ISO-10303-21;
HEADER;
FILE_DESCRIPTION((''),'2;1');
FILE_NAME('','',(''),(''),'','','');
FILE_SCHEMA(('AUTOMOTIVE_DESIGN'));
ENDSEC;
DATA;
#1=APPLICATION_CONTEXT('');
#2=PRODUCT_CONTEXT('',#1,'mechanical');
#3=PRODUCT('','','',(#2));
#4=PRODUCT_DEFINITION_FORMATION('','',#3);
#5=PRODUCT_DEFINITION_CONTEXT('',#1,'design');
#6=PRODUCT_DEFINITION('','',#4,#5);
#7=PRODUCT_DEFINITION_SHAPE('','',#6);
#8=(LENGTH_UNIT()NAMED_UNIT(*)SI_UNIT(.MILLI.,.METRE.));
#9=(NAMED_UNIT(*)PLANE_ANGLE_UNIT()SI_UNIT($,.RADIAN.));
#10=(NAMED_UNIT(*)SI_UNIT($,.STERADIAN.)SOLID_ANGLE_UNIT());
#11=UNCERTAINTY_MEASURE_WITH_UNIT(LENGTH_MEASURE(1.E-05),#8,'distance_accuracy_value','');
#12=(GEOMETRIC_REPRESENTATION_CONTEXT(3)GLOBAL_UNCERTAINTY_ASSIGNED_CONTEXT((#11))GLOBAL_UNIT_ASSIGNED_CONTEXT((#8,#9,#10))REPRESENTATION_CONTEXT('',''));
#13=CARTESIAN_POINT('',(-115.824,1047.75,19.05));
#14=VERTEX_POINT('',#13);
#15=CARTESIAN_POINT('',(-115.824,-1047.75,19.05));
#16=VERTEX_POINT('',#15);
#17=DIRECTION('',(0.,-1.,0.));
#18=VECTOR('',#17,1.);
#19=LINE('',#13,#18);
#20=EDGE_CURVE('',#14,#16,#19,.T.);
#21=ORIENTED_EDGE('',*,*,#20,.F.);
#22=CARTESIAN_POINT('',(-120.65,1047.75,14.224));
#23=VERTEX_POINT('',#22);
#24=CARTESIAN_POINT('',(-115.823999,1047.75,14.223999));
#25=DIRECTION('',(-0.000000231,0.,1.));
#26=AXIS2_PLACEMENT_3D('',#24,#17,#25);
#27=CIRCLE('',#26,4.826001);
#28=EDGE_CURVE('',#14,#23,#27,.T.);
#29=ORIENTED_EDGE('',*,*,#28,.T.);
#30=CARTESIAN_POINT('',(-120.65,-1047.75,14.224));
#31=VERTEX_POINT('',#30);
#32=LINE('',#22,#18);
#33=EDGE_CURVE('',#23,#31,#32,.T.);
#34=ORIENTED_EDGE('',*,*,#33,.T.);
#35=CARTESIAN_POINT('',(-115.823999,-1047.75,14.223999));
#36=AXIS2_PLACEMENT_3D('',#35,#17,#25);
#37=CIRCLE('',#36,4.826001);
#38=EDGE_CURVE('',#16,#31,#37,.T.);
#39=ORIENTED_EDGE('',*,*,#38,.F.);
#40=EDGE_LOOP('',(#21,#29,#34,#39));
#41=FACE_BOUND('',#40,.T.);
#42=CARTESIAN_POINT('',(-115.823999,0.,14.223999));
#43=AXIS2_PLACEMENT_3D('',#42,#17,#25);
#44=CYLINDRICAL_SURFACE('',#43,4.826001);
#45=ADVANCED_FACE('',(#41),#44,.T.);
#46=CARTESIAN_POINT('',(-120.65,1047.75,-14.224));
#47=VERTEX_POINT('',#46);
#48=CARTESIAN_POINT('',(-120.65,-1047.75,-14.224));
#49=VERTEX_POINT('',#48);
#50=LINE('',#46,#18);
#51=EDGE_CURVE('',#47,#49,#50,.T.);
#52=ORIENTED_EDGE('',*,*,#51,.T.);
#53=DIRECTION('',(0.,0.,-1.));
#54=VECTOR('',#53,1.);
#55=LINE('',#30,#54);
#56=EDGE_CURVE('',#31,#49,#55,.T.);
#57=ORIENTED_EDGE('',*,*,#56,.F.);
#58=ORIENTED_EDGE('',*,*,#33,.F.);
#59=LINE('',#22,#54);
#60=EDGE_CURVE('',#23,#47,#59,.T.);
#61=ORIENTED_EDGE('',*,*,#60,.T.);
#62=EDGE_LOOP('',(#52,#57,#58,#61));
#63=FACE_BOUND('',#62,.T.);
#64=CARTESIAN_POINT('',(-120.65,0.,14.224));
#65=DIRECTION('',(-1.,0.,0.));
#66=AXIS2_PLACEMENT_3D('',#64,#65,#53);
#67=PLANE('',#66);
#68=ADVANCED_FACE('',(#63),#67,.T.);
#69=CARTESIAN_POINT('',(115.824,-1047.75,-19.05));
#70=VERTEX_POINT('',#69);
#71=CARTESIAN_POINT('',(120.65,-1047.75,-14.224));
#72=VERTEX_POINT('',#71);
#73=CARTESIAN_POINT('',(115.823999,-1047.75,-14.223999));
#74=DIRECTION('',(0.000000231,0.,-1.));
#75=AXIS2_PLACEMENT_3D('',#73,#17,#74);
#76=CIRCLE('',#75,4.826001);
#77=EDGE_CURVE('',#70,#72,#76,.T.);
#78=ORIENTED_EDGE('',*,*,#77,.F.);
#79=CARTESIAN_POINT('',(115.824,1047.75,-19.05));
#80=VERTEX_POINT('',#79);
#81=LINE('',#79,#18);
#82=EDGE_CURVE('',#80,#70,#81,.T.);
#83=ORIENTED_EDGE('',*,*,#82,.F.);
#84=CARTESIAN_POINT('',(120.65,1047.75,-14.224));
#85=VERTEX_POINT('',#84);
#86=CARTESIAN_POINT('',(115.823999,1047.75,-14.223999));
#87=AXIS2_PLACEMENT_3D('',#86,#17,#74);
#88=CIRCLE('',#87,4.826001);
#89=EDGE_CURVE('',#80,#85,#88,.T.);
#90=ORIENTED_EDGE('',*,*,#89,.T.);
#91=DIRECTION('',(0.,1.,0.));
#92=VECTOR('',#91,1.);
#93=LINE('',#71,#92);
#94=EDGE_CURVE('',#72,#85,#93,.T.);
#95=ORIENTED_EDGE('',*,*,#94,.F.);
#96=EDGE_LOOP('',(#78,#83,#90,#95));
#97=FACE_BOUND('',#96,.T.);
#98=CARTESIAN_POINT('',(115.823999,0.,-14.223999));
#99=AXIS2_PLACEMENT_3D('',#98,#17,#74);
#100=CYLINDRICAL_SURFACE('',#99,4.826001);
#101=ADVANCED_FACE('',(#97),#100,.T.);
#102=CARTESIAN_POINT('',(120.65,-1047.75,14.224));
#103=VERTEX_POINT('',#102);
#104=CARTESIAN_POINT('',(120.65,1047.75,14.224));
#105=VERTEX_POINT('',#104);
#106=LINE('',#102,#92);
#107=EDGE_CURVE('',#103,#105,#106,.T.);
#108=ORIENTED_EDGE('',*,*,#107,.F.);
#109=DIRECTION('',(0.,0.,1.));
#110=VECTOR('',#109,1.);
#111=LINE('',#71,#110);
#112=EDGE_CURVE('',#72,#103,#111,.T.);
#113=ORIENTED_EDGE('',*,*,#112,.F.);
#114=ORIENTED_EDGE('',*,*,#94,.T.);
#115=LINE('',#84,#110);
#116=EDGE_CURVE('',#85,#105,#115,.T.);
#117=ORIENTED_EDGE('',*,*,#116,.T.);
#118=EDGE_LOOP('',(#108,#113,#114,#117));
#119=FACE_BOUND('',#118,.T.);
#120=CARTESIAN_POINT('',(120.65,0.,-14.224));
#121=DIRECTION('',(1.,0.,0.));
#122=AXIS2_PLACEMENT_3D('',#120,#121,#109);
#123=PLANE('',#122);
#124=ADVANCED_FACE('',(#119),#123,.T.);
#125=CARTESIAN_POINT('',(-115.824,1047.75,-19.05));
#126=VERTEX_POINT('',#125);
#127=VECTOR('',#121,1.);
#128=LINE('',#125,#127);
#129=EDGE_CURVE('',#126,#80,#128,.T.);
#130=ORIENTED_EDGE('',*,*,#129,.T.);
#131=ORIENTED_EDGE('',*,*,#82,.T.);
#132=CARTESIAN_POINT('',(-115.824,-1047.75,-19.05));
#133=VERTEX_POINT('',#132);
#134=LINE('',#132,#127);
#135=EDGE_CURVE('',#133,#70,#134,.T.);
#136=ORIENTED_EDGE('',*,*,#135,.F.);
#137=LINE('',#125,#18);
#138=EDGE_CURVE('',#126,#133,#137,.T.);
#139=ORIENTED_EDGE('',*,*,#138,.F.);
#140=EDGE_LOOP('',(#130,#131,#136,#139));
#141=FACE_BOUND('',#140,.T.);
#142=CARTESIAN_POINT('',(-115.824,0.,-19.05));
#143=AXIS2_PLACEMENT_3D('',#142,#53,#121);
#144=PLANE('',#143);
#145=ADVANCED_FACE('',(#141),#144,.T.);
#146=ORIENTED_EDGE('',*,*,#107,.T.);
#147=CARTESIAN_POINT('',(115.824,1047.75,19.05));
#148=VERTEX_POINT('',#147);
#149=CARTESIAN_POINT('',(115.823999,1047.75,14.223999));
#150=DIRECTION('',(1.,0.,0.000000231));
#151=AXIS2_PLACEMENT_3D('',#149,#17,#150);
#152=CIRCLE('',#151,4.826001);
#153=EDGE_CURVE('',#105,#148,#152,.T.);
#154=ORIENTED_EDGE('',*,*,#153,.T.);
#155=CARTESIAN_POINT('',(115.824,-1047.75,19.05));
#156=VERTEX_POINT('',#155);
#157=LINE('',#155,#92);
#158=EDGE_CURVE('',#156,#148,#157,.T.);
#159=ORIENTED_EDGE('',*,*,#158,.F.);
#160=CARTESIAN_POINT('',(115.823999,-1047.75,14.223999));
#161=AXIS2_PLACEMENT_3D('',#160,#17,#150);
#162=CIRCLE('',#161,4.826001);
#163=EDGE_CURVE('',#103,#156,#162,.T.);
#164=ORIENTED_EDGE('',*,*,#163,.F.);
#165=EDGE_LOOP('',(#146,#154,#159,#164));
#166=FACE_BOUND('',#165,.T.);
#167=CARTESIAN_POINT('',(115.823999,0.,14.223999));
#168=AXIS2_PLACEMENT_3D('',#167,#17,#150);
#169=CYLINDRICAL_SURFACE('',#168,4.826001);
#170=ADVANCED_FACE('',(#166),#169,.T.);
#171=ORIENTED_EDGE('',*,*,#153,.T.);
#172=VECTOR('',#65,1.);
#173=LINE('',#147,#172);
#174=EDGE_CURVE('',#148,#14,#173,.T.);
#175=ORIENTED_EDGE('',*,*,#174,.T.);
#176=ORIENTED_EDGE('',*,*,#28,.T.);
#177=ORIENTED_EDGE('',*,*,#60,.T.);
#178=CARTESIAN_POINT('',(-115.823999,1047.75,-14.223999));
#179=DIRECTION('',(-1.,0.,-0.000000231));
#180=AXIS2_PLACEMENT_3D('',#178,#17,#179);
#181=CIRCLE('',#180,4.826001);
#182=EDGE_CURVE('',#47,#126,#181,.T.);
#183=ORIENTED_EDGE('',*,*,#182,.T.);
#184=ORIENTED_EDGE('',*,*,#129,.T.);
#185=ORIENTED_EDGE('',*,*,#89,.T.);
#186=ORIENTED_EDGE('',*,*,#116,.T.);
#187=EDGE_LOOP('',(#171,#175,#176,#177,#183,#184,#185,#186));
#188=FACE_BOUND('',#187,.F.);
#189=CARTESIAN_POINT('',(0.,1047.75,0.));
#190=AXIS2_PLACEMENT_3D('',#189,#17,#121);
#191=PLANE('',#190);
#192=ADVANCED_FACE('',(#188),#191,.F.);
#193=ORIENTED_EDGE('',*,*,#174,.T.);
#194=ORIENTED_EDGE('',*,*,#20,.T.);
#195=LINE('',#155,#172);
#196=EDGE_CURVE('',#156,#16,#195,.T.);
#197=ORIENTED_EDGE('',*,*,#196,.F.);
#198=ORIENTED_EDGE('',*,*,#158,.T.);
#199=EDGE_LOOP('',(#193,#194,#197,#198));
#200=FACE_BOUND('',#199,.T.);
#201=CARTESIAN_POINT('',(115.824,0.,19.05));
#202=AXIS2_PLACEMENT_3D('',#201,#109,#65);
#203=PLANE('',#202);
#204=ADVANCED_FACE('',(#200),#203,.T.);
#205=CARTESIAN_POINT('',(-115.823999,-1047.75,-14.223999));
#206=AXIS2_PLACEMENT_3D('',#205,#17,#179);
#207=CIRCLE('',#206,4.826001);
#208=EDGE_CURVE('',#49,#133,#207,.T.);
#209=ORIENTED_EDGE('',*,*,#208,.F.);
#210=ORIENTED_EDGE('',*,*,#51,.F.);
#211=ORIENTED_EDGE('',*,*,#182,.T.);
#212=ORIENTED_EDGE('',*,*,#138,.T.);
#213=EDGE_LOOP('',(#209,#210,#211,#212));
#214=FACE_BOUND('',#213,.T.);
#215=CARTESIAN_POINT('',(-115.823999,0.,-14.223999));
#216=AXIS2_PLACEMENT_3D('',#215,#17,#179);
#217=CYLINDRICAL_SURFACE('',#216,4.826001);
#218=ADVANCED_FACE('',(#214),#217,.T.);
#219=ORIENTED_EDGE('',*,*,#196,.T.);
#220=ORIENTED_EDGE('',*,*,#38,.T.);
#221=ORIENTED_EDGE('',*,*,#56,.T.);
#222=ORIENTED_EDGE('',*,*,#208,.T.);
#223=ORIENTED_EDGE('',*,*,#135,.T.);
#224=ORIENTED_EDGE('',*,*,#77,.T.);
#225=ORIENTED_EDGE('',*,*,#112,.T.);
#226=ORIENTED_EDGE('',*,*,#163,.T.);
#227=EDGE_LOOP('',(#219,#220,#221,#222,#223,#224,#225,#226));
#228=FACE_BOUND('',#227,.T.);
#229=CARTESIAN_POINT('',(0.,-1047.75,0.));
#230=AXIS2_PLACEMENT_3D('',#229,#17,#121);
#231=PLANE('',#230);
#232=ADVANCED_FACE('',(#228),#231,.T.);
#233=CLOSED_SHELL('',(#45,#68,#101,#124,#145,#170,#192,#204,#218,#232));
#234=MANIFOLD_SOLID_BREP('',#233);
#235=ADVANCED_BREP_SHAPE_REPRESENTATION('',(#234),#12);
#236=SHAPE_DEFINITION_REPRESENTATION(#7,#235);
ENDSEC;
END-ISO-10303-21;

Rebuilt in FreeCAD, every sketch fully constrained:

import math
import FreeCAD as App
import Part
import Sketcher
from FreeCAD import Vector
Q = App.Units.Quantity

doc = App.newDocument("Part")
body = doc.addObject("PartDesign::Body", "Body")

sketch1 = body.newObject("Sketcher::SketchObject", "Sketch")
sketch1.AttachmentSupport = (doc.getObject("XZ_Plane"), [""])
sketch1.MapMode = "FlatFace"
sketch1.addGeometry(Part.LineSegment(Vector(115.824, 19.05, 0), Vector(-115.824, 19.05, 0)), False)
sketch1.addGeometry(Part.ArcOfCircle(Part.Circle(Vector(-115.823999, 14.223999, 0), Vector(0, 0, 1), 4.826001), math.radians(90.000013), math.radians(179.999987)), False)
sketch1.addGeometry(Part.LineSegment(Vector(-120.65, 14.224, 0), Vector(-120.65, -14.224, 0)), False)
sketch1.addGeometry(Part.ArcOfCircle(Part.Circle(Vector(-115.823999, -14.223999, 0), Vector(0, 0, 1), 4.826001), math.radians(-179.999987), math.radians(-90.000013)), False)
sketch1.addGeometry(Part.LineSegment(Vector(-115.824, -19.05, 0), Vector(115.824, -19.05, 0)), False)
sketch1.addGeometry(Part.ArcOfCircle(Part.Circle(Vector(115.823999, -14.223999, 0), Vector(0, 0, 1), 4.826001), math.radians(-89.999987), math.radians(-0.000013)), False)
sketch1.addGeometry(Part.LineSegment(Vector(120.65, -14.224, 0), Vector(120.65, 14.224, 0)), False)
sketch1.addGeometry(Part.ArcOfCircle(Part.Circle(Vector(115.823999, 14.223999, 0), Vector(0, 0, 1), 4.826001), math.radians(0.000013), math.radians(89.999987)), False)
sketch1.addConstraint(Sketcher.Constraint("Tangent", 0, 2, 1, 1))
sketch1.addConstraint(Sketcher.Constraint("Tangent", 1, 2, 2, 1))
sketch1.addConstraint(Sketcher.Constraint("Tangent", 2, 2, 3, 1))
sketch1.addConstraint(Sketcher.Constraint("Tangent", 3, 2, 4, 1))
sketch1.addConstraint(Sketcher.Constraint("Tangent", 4, 2, 5, 1))
sketch1.addConstraint(Sketcher.Constraint("Tangent", 5, 2, 6, 1))
sketch1.addConstraint(Sketcher.Constraint("Tangent", 6, 2, 7, 1))
sketch1.addConstraint(Sketcher.Constraint("Tangent", 7, 2, 0, 1))
sketch1.addConstraint(Sketcher.Constraint("Horizontal", 0))
sketch1.addConstraint(Sketcher.Constraint("Vertical", 2))
sketch1.addConstraint(Sketcher.Constraint("Horizontal", 4))
sketch1.addConstraint(Sketcher.Constraint("Vertical", 6))
sketch1.addConstraint(Sketcher.Constraint("Equal", 1, 3))
sketch1.addConstraint(Sketcher.Constraint("Equal", 3, 5))
sketch1.addConstraint(Sketcher.Constraint("Equal", 5, 7))
sketch1.addConstraint(Sketcher.Constraint("Symmetric", 1, 3, 5, 3, -1, 1))
sketch1.addConstraint(Sketcher.Constraint("Radius", 1, Q("0.19 in")))
sketch1.addConstraint(Sketcher.Constraint("DistanceX", 0, 2, 0, 1, Q("9.12 in")))
sketch1.addConstraint(Sketcher.Constraint("DistanceY", 2, 2, 2, 1, Q("1.12 in")))
pad1 = body.newObject("PartDesign::Pad", "Pad")
pad1.Profile = sketch1
pad1.Length = Q("82.5 in")
pad1.Midplane = True

doc.recompute()
